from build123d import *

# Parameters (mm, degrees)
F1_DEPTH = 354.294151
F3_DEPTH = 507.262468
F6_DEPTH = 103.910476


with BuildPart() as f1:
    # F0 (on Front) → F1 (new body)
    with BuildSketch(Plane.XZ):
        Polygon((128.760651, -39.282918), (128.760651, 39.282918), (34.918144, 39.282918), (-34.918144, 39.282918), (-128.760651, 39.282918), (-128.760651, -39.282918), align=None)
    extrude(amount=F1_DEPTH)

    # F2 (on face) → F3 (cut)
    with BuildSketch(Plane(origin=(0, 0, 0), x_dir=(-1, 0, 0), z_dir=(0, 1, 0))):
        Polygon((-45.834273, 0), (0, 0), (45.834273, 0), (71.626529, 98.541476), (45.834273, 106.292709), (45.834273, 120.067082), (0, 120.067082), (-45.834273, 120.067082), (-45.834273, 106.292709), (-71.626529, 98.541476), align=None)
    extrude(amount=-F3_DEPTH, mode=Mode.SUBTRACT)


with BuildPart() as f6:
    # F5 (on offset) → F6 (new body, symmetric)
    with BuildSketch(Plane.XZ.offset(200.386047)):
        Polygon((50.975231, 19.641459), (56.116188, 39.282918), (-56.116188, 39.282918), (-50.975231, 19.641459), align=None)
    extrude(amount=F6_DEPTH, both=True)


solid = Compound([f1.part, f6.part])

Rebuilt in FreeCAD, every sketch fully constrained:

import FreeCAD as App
import Part
import Sketcher

doc = App.newDocument("Part")
body = doc.addObject("PartDesign::Body", "Body")

# Sketch on XZ plane
sketch1 = doc.addObject("Sketcher::SketchObject", "Sketch")
body.addObject(sketch1)
sketch1.AttachmentSupport = (doc.XZ_Plane, [""])
sketch1.MapMode = "FlatFace"
sketch1.addGeometry(Part.LineSegment(App.Vector(129, -39, 0), App.Vector(129, 39, 0)), False)
sketch1.addGeometry(Part.LineSegment(App.Vector(129, 39, 0), App.Vector(-129, 39, 0)), False)
sketch1.addGeometry(Part.LineSegment(App.Vector(-129, 39, 0), App.Vector(-129, -39, 0)), False)
sketch1.addGeometry(Part.LineSegment(App.Vector(-129, -39, 0), App.Vector(129, -39, 0)), False)
sketch1.addConstraint(Sketcher.Constraint("Coincident", 0, 2, 1, 1))
sketch1.addConstraint(Sketcher.Constraint("Coincident", 1, 2, 2, 1))
sketch1.addConstraint(Sketcher.Constraint("Coincident", 2, 2, 3, 1))
sketch1.addConstraint(Sketcher.Constraint("Coincident", 3, 2, 0, 1))
sketch1.addConstraint(Sketcher.Constraint("Vertical", 0))
sketch1.addConstraint(Sketcher.Constraint("Horizontal", 1))
sketch1.addConstraint(Sketcher.Constraint("Vertical", 2))
sketch1.addConstraint(Sketcher.Constraint("Horizontal", 3))
sketch1.addConstraint(Sketcher.Constraint("Symmetric", 0, 2, 2, 2, -1, 1))
sketch1.addConstraint(Sketcher.Constraint("DistanceX", 1, 2, 1, 1, 257.521302))
sketch1.addConstraint(Sketcher.Constraint("DistanceY", 0, 1, 0, 2, 78.565836))
pad1 = doc.addObject("PartDesign::Pad", "Pad")
body.addObject(pad1)
pad1.Profile = sketch1
pad1.Length = 354.294151

# Sketch on XZ plane
sketch2 = doc.addObject("Sketcher::SketchObject", "Sketch001")
body.addObject(sketch2)
sketch2.AttachmentSupport = (doc.XZ_Plane, [""])
sketch2.MapMode = "FlatFace"
sketch2.addGeometry(Part.LineSegment(App.Vector(46, 0, 0), App.Vector(-46, 0, 0)), False)
sketch2.addGeometry(Part.LineSegment(App.Vector(-46, 0, 0), App.Vector(-72, 99, 0)), False)
sketch2.addGeometry(Part.LineSegment(App.Vector(-72, 99, 0), App.Vector(-46, 106, 0)), False)
sketch2.addGeometry(Part.LineSegment(App.Vector(-46, 106, 0), App.Vector(-46, 120, 0)), False)
sketch2.addGeometry(Part.LineSegment(App.Vector(-46, 120, 0), App.Vector(46, 120, 0)), False)
sketch2.addGeometry(Part.LineSegment(App.Vector(46, 120, 0), App.Vector(46, 106, 0)), False)
sketch2.addGeometry(Part.LineSegment(App.Vector(46, 106, 0), App.Vector(72, 99, 0)), False)
sketch2.addGeometry(Part.LineSegment(App.Vector(72, 99, 0), App.Vector(46, 0, 0)), False)
sketch2.addConstraint(Sketcher.Constraint("Coincident", 0, 2, 1, 1))
sketch2.addConstraint(Sketcher.Constraint("Coincident", 1, 2, 2, 1))
sketch2.addConstraint(Sketcher.Constraint("Coincident", 2, 2, 3, 1))
sketch2.addConstraint(Sketcher.Constraint("Coincident", 3, 2, 4, 1))
sketch2.addConstraint(Sketcher.Constraint("Coincident", 4, 2, 5, 1))
sketch2.addConstraint(Sketcher.Constraint("Coincident", 5, 2, 6, 1))
sketch2.addConstraint(Sketcher.Constraint("Coincident", 6, 2, 7, 1))
sketch2.addConstraint(Sketcher.Constraint("Coincident", 7, 2, 0, 1))
sketch2.addConstraint(Sketcher.Constraint("Horizontal", 0))
sketch2.addConstraint(Sketcher.Constraint("Vertical", 3))
sketch2.addConstraint(Sketcher.Constraint("Horizontal", 4))
sketch2.addConstraint(Sketcher.Constraint("Vertical", 5))
sketch2.addConstraint(Sketcher.Constraint("Symmetric", 0, 2, 7, 2, -1, 1))
sketch2.addConstraint(Sketcher.Constraint("Symmetric", 2, 2, 5, 2, -2))
sketch2.addConstraint(Sketcher.Constraint("Symmetric", 1, 2, 6, 2, -2))
sketch2.addConstraint(Sketcher.Constraint("Vertical", 0, 2, 2, 2))
sketch2.addConstraint(Sketcher.Constraint("Distance", 1, 101.860998))
sketch2.addConstraint(Sketcher.Constraint("DistanceX", 1, 2, 4, 2, 117.460802))
sketch2.addConstraint(Sketcher.Constraint("DistanceX", 0, 2, 0, 1, 91.668546))
sketch2.addConstraint(Sketcher.Constraint("DistanceY", 3, 1, 3, 2, 13.774373))
sketch2.addConstraint(Sketcher.Constraint("DistanceY", -1, 1, 2, 2, 106.292709))
pocket1 = doc.addObject("PartDesign::Pocket", "Pocket")
body.addObject(pocket1)
pocket1.Profile = sketch2
pocket1.Length = 507.262468
pocket1.Reversed = True
body2 = doc.addObject("PartDesign::Body", "Body001")

# Sketch on XZ plane
sketch3 = doc.addObject("Sketcher::SketchObject", "Sketch002")
body2.addObject(sketch3)
sketch3.AttachmentSupport = (doc.getObject("XZ_Plane001"), [""])
sketch3.MapMode = "FlatFace"
sketch3.AttachmentOffset = App.Placement(App.Vector(0, 0, 200.386047), App.Rotation())
sketch3.addGeometry(Part.LineSegment(App.Vector(51, 20, 0), App.Vector(56, 39, 0)), False)
sketch3.addGeometry(Part.LineSegment(App.Vector(56, 39, 0), App.Vector(-56, 39, 0)), False)
sketch3.addGeometry(Part.LineSegment(App.Vector(-56, 39, 0), App.Vector(-51, 20, 0)), False)
sketch3.addGeometry(Part.LineSegment(App.Vector(-51, 20, 0), App.Vector(51, 20, 0)), False)
sketch3.addConstraint(Sketcher.Constraint("Coincident", 0, 2, 1, 1))
sketch3.addConstraint(Sketcher.Constraint("Coincident", 1, 2, 2, 1))
sketch3.addConstraint(Sketcher.Constraint("Coincident", 2, 2, 3, 1))
sketch3.addConstraint(Sketcher.Constraint("Coincident", 3, 2, 0, 1))
sketch3.addConstraint(Sketcher.Constraint("Horizontal", 1))
sketch3.addConstraint(Sketcher.Constraint("Horizontal", 3))
sketch3.addConstraint(Sketcher.Constraint("Equal", 0, 2))
sketch3.addConstraint(Sketcher.Constraint("DistanceX", 3, 1, 3, 2, 101.950462))
sketch3.addConstraint(Sketcher.Constraint("Distance", 0, 20.303112))
sketch3.addConstraint(Sketcher.Constraint("DistanceX", 1, 2, 1, 1, 112.232376))
sketch3.addConstraint(Sketcher.Constraint("DistanceY", -1, 1, 0, 2, 39.282918))
sketch3.addConstraint(Sketcher.Constraint("DistanceX", 2, 2, -1, 1, 50.975231))
pad2 = doc.addObject("PartDesign::Pad", "Pad001")
body2.addObject(pad2)
pad2.Profile = sketch3
pad2.Length = 207.820952
pad2.Midplane = True

doc.recompute()
